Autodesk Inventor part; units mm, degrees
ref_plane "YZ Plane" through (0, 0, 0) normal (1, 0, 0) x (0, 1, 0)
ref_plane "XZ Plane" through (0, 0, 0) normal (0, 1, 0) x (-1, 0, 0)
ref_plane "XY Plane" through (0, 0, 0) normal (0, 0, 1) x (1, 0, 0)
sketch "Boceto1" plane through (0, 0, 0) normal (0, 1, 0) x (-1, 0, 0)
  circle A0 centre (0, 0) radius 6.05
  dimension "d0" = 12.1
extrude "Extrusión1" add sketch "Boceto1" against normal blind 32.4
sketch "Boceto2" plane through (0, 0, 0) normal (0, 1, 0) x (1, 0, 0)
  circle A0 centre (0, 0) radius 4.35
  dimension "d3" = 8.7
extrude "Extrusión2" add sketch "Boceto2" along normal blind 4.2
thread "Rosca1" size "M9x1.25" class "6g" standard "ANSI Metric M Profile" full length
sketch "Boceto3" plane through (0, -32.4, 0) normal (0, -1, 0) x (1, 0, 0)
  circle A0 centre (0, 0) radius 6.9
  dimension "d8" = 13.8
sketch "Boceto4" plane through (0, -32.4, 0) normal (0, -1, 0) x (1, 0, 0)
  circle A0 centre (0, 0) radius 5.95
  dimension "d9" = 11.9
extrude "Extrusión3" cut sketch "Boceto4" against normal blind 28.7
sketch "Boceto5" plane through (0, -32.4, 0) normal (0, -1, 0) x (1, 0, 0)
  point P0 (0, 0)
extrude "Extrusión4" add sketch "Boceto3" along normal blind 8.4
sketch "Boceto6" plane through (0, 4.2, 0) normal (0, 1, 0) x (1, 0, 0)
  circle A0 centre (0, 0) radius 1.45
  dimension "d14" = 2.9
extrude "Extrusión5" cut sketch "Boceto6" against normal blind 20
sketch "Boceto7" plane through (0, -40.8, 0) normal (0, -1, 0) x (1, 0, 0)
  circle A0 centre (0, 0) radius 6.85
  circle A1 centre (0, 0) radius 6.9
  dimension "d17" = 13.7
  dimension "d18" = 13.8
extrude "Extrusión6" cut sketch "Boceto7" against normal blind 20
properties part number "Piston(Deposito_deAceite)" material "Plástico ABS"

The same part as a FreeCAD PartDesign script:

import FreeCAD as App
import Part
import Sketcher

doc = App.newDocument("Part")
params = doc.addObject("Spreadsheet::Sheet", "Params")
for row, (alias, value) in enumerate([
    ("sketch1_diameter", "12.1 mm"),
    ("pad1_length", "32.4 mm"),
    ("sketch2_diameter", "8.7 mm"),
    ("pad2_length", "4.2 mm"),
    ("sketch3_diameter", "11.9 mm"),
    ("pocket1_length", "28.7 mm"),
    ("sketch4_diameter", "13.8 mm"),
    ("pad3_length", "8.4 mm"),
    ("sketch5_diameter", "2.9 mm"),
    ("pocket2_length", "20 mm"),
    ("sketch6_diameter", "13.8 mm"),
    ("sketch6_diameter2", "13.7 mm"),
    ("pocket3_length", "20 mm"),
], start=1):
    params.set(f"A{row}", alias)
    params.set(f"B{row}", "=" + value)
    params.setAlias(f"B{row}", alias)

body = doc.addObject("PartDesign::Body", "Body")

# Sketch on XZ plane
sketch1 = body.newObject("Sketcher::SketchObject", "Sketch")
sketch1.AttachmentSupport = (doc.getObject("XZ_Plane"), [""])
sketch1.MapMode = "FlatFace"
sketch1.addGeometry(Part.Circle(App.Vector(0, 0, 0), App.Vector(0, 0, 1), 6), False)
sketch1.addConstraint(Sketcher.Constraint("Coincident", 0, 3, -1, 1))
sketch1.addConstraint(Sketcher.Constraint("Diameter", 0, 12.1))
sketch1.setExpression("Constraints[1]", "Params.sketch1_diameter")
pad1 = body.newObject("PartDesign::Pad", "Pad")
pad1.Profile = sketch1
pad1.setExpression("Length", "Params.pad1_length")

# Sketch on XZ plane
sketch2 = body.newObject("Sketcher::SketchObject", "Sketch001")
sketch2.AttachmentSupport = (doc.getObject("XZ_Plane"), [""])
sketch2.MapMode = "FlatFace"
sketch2.addGeometry(Part.Circle(App.Vector(0, 0, 0), App.Vector(0, 0, 1), 4.3), False)
sketch2.addConstraint(Sketcher.Constraint("Coincident", 0, 3, -1, 1))
sketch2.addConstraint(Sketcher.Constraint("Diameter", 0, 8.7))
sketch2.setExpression("Constraints[1]", "Params.sketch2_diameter")
pad2 = body.newObject("PartDesign::Pad", "Pad001")
pad2.Profile = sketch2
pad2.setExpression("Length", "Params.pad2_length")
pad2.Reversed = True

# Sketch on XZ plane
sketch3 = body.newObject("Sketcher::SketchObject", "Sketch002")
sketch3.AttachmentSupport = (doc.getObject("XZ_Plane"), [""])
sketch3.MapMode = "FlatFace"
sketch3.AttachmentOffset = App.Placement(App.Vector(0, 0, 32.4), App.Rotation())
sketch3.addGeometry(Part.Circle(App.Vector(0, 0, 0), App.Vector(0, 0, 1), 6), False)
sketch3.addConstraint(Sketcher.Constraint("Coincident", 0, 3, -1, 1))
sketch3.addConstraint(Sketcher.Constraint("Diameter", 0, 11.9))
sketch3.setExpression("Constraints[1]", "Params.sketch3_diameter")
pocket1 = body.newObject("PartDesign::Pocket", "Pocket")
pocket1.Profile = sketch3
pocket1.setExpression("Length", "Params.pocket1_length")

# Sketch on XZ plane
sketch4 = body.newObject("Sketcher::SketchObject", "Sketch003")
sketch4.AttachmentSupport = (doc.getObject("XZ_Plane"), [""])
sketch4.MapMode = "FlatFace"
sketch4.AttachmentOffset = App.Placement(App.Vector(0, 0, 32.4), App.Rotation())
sketch4.addGeometry(Part.Circle(App.Vector(0, 0, 0), App.Vector(0, 0, 1), 7), False)
sketch4.addConstraint(Sketcher.Constraint("Coincident", 0, 3, -1, 1))
sketch4.addConstraint(Sketcher.Constraint("Diameter", 0, 13.8))
sketch4.setExpression("Constraints[1]", "Params.sketch4_diameter")
pad3 = body.newObject("PartDesign::Pad", "Pad002")
pad3.Profile = sketch4
pad3.setExpression("Length", "Params.pad3_length")

# Sketch on XZ plane
sketch5 = body.newObject("Sketcher::SketchObject", "Sketch004")
sketch5.AttachmentSupport = (doc.getObject("XZ_Plane"), [""])
sketch5.MapMode = "FlatFace"
sketch5.AttachmentOffset = App.Placement(App.Vector(0, 0, -4.2), App.Rotation())
sketch5.addGeometry(Part.Circle(App.Vector(0, 0, 0), App.Vector(0, 0, 1), 1.4), False)
sketch5.addConstraint(Sketcher.Constraint("Coincident", 0, 3, -1, 1))
sketch5.addConstraint(Sketcher.Constraint("Diameter", 0, 2.9))
sketch5.setExpression("Constraints[1]", "Params.sketch5_diameter")
pocket2 = body.newObject("PartDesign::Pocket", "Pocket001")
pocket2.Profile = sketch5
pocket2.setExpression("Length", "Params.pocket2_length")
pocket2.Reversed = True

# Sketch on XZ plane
sketch6 = body.newObject("Sketcher::SketchObject", "Sketch005")
sketch6.AttachmentSupport = (doc.getObject("XZ_Plane"), [""])
sketch6.MapMode = "FlatFace"
sketch6.AttachmentOffset = App.Placement(App.Vector(0, 0, 40.8), App.Rotation())
sketch6.addGeometry(Part.Circle(App.Vector(0, 0, 0), App.Vector(0, 0, 1), 7), False)
sketch6.addGeometry(Part.Circle(App.Vector(0, 0, 0), App.Vector(0, 0, 1), 7), False)
sketch6.addConstraint(Sketcher.Constraint("Coincident", 0, 3, -1, 1))
sketch6.addConstraint(Sketcher.Constraint("Coincident", 1, 3, -1, 1))
sketch6.addConstraint(Sketcher.Constraint("Diameter", 0, 13.8))
sketch6.addConstraint(Sketcher.Constraint("Diameter", 1, 13.7))
sketch6.setExpression("Constraints[2]", "Params.sketch6_diameter")
sketch6.setExpression("Constraints[3]", "Params.sketch6_diameter2")
pocket3 = body.newObject("PartDesign::Pocket", "Pocket002")
pocket3.Profile = sketch6
pocket3.setExpression("Length", "Params.pocket3_length")

doc.recompute()
